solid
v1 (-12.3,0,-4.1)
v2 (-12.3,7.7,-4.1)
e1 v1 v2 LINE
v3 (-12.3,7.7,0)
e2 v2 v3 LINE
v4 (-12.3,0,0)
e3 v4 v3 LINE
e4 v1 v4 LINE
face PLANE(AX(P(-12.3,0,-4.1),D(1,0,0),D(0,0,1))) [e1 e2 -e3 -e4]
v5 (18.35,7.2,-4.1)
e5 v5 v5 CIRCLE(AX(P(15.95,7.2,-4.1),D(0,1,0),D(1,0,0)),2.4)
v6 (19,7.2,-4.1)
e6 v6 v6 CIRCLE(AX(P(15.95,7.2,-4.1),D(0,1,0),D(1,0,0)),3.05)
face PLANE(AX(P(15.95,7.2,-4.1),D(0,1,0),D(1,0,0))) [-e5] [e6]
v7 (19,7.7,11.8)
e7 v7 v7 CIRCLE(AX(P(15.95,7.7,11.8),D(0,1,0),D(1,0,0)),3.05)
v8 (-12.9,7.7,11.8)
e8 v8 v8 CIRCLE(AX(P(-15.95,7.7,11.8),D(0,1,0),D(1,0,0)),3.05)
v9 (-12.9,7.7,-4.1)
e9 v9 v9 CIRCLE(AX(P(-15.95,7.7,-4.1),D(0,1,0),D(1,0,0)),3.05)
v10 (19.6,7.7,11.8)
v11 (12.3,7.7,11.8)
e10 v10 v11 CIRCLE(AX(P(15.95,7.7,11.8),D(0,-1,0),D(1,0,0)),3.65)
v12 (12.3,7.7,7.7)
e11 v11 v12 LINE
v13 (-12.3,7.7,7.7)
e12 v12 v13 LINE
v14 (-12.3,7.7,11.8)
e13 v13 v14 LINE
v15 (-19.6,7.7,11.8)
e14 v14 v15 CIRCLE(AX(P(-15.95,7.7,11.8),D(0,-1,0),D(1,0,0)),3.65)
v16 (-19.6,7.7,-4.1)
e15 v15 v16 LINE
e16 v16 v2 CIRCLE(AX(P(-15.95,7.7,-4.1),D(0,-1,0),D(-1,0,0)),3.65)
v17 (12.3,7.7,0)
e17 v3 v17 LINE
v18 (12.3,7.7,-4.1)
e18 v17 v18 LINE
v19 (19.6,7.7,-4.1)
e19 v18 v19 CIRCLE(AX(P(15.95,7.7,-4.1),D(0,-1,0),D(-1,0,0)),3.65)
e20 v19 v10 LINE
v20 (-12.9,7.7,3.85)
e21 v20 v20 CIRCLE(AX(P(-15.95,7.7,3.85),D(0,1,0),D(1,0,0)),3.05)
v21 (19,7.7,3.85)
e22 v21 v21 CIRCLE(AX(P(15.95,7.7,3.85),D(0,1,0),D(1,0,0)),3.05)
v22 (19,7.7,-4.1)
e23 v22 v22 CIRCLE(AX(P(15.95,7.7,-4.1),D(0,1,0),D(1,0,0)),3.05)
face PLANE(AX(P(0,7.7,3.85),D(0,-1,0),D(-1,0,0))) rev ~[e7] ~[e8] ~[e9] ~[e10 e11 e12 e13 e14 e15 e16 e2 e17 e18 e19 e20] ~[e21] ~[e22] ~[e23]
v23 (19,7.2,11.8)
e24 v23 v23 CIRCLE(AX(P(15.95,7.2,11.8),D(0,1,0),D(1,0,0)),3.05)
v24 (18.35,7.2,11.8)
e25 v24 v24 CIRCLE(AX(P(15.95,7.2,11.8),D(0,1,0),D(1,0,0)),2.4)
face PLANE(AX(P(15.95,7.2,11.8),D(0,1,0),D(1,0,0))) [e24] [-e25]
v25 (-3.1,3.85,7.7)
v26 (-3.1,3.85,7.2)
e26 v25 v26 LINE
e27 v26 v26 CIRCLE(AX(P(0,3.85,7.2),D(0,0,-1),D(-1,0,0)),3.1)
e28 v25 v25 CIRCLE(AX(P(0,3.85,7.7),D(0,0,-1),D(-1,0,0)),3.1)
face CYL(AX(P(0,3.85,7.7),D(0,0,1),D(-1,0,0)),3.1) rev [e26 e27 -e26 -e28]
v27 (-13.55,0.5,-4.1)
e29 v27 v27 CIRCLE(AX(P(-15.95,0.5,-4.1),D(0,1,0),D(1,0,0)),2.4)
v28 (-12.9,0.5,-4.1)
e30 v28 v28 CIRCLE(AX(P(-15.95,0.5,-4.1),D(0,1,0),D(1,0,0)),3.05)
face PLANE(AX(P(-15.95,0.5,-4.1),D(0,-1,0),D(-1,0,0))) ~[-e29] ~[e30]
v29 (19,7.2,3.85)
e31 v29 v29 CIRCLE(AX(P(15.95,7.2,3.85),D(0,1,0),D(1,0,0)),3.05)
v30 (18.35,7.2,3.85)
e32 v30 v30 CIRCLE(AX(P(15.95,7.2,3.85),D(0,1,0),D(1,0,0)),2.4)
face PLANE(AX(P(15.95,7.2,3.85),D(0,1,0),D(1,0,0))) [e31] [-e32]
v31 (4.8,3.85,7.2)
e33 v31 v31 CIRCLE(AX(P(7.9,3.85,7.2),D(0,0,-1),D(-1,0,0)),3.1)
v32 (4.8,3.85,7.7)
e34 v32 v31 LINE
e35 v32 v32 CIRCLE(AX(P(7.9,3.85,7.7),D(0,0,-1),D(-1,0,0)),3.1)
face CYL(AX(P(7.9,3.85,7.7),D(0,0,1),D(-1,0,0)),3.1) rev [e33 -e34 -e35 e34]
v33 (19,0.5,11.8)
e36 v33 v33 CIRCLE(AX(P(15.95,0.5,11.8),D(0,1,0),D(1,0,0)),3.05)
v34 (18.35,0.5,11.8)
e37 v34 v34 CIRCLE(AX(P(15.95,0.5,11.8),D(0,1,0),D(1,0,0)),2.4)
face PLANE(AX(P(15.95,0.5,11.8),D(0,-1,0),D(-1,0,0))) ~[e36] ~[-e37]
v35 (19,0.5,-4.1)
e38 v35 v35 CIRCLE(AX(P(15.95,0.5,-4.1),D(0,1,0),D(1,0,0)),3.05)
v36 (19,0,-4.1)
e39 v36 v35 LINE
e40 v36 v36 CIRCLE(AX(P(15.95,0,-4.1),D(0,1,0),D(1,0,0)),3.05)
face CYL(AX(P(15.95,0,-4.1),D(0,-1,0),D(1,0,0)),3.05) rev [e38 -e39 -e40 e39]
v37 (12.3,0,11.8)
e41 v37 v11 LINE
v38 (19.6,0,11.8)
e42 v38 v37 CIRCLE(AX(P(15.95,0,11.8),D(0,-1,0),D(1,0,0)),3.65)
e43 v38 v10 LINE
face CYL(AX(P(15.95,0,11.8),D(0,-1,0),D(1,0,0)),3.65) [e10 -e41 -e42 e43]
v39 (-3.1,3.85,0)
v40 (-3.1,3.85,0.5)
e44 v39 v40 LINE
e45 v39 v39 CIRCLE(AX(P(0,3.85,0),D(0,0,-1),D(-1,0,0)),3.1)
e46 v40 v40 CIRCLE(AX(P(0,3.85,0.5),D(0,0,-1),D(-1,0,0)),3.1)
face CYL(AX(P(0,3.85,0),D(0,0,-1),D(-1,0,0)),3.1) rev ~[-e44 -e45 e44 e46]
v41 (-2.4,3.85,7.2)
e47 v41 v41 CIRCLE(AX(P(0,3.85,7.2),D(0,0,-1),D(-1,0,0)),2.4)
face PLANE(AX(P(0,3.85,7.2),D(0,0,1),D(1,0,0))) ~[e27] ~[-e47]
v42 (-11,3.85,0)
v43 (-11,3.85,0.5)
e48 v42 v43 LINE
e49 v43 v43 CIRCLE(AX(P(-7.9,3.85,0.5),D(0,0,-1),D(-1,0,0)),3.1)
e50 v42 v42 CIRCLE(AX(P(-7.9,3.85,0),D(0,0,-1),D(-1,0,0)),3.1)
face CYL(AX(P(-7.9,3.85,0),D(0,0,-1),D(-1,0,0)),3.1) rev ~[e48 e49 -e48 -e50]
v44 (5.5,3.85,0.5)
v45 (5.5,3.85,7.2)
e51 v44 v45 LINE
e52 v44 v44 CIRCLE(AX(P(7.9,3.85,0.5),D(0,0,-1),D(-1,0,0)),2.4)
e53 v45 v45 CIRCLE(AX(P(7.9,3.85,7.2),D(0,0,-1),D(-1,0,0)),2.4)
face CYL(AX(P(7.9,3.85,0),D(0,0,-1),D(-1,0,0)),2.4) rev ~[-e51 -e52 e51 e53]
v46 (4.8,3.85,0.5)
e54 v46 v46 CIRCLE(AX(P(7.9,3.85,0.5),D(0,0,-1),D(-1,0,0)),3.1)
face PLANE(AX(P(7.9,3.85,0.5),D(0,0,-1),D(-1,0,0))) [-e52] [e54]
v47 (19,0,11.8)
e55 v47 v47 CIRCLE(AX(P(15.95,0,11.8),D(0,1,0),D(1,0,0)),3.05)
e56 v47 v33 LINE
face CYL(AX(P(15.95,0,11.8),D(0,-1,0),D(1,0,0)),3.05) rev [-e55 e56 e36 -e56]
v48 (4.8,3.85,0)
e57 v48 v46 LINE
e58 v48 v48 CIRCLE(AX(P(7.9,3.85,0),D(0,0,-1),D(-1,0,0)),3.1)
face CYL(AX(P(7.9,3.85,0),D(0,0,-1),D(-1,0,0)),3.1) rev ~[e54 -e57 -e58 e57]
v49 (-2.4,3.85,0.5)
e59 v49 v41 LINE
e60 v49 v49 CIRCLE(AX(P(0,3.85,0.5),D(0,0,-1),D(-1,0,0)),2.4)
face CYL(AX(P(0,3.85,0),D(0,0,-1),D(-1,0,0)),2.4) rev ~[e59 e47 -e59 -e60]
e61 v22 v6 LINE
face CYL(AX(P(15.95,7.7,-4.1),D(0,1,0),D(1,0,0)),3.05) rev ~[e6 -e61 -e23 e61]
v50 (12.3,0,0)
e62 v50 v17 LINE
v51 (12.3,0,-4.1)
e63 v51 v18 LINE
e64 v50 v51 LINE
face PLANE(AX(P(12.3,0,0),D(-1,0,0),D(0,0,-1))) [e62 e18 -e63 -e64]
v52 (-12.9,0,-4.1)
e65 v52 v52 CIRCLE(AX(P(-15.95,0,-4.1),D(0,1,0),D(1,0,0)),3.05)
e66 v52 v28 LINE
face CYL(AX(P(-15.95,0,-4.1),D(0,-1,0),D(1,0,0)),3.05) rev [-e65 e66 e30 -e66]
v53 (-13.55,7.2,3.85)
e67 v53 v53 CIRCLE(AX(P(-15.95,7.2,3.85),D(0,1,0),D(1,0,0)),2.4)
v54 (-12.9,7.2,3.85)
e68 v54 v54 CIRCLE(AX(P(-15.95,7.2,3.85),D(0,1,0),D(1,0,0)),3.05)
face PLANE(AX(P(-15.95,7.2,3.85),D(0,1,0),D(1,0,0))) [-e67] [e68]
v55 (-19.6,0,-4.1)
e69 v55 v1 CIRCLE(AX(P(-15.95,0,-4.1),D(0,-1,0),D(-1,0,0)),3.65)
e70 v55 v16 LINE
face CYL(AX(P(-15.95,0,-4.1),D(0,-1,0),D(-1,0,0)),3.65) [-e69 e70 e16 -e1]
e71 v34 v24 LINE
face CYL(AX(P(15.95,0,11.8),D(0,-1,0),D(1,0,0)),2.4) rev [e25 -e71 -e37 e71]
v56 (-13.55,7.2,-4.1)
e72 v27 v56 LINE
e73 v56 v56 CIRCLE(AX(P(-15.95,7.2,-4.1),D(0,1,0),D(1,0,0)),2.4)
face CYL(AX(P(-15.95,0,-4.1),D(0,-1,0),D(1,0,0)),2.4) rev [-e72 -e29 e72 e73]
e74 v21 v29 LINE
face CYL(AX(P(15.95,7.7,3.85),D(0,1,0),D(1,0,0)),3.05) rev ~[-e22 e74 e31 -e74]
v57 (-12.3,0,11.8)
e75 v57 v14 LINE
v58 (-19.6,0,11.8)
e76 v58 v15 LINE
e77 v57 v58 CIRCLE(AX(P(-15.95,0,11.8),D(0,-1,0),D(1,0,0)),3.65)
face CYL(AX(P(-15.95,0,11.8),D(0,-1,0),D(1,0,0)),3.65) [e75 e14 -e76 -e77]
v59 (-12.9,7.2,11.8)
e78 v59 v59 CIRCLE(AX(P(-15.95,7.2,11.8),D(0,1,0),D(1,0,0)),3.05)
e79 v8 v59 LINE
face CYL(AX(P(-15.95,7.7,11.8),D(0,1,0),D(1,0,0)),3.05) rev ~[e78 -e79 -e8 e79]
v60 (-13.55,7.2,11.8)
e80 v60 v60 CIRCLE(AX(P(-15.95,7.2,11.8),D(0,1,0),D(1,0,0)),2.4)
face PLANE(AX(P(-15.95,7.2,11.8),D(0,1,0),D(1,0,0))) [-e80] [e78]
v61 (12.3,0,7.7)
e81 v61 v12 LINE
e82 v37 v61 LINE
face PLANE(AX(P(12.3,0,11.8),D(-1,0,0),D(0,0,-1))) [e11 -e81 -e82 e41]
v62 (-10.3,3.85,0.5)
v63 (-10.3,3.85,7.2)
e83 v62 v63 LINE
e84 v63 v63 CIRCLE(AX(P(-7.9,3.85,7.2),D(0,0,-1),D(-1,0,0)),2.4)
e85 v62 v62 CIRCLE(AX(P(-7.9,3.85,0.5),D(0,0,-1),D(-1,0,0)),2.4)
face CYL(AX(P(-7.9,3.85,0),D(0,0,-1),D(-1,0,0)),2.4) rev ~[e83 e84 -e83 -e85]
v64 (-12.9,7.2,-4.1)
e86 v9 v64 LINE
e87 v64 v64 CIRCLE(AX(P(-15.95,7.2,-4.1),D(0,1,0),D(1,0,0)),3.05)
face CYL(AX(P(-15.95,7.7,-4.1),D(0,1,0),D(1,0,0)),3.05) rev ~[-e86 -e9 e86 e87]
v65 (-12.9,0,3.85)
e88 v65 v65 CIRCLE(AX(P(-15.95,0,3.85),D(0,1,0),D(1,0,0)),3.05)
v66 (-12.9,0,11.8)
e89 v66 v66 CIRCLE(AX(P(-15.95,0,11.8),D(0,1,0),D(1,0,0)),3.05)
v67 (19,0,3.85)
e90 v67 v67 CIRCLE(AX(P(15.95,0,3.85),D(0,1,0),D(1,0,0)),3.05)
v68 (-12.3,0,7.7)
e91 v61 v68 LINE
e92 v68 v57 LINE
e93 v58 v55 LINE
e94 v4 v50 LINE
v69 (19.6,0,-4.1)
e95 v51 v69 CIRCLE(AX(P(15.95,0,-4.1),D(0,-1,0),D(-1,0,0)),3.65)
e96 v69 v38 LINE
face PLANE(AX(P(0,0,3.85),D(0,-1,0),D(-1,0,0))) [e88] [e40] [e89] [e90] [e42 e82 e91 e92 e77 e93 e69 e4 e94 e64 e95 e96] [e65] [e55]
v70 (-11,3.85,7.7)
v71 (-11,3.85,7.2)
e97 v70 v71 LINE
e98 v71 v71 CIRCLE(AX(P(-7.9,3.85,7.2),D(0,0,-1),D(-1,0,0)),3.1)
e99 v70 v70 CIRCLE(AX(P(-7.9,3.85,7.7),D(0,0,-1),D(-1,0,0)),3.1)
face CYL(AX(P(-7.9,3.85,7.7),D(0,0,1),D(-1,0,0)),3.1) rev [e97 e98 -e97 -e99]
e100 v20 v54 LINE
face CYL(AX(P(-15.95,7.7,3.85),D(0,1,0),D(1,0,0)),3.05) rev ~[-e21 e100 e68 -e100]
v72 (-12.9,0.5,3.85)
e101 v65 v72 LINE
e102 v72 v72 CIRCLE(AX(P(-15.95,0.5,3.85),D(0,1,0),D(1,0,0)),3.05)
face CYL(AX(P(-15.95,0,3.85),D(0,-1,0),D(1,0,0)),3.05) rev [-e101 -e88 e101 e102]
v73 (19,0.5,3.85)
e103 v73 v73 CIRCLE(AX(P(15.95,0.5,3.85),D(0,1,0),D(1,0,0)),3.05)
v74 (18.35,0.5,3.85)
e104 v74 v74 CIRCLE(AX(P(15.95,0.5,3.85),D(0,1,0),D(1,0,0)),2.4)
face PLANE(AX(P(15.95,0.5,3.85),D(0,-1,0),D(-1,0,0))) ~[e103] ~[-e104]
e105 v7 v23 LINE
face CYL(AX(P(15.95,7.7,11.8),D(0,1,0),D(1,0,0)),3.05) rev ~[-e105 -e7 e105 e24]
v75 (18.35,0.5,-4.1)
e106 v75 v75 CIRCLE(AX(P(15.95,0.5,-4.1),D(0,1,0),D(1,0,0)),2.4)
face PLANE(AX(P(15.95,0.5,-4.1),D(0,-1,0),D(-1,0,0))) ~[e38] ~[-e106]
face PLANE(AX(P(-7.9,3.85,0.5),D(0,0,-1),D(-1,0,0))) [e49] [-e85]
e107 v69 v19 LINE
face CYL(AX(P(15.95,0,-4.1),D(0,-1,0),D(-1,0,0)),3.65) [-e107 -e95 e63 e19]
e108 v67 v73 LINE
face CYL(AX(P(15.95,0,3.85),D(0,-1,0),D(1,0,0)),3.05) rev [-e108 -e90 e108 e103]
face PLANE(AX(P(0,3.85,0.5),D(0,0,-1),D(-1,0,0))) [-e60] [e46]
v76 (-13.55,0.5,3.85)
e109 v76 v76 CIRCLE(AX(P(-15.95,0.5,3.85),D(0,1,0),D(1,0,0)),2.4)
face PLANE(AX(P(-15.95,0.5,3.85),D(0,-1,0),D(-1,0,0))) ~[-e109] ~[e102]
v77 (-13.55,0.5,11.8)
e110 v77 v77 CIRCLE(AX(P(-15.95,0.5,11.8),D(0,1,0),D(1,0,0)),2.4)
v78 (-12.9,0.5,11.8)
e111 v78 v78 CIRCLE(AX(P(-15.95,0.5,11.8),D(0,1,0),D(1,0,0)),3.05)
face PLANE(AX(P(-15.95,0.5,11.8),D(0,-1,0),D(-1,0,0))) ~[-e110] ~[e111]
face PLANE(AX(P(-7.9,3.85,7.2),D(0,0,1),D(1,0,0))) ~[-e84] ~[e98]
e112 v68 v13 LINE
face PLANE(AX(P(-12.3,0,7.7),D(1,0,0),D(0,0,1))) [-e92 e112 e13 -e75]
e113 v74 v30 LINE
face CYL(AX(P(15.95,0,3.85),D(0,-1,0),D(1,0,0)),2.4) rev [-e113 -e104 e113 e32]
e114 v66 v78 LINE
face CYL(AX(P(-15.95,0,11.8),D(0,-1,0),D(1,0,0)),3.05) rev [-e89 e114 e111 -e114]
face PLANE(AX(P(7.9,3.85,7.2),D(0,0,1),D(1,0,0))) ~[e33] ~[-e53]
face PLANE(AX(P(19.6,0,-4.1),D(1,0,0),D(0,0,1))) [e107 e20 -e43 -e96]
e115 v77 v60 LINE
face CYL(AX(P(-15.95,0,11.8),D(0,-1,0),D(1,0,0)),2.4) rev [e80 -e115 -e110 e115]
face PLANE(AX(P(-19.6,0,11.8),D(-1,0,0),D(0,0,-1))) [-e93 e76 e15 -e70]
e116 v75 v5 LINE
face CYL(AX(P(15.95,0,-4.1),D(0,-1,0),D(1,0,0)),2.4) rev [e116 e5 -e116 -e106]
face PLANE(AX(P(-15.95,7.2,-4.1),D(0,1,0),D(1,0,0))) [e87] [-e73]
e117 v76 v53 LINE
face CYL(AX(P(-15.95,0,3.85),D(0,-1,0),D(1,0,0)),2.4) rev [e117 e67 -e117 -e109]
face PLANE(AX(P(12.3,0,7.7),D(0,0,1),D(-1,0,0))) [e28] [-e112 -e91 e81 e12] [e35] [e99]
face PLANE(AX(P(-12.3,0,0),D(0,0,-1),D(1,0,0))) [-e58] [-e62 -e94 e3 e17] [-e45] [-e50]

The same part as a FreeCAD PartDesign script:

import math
import FreeCAD as App
import Part
import Sketcher
Q = App.Units.Quantity

doc = App.newDocument("Part")
body = doc.addObject("PartDesign::Body", "Body")

sketch1 = body.newObject("Sketcher::SketchObject", "Sketch")
sketch1.AttachmentSupport = (doc.getObject("XZ_Plane"), [""])
sketch1.MapMode = "FlatFace"
sketch1.addGeometry([
    Part.LineSegment(App.Vector(19.6, 11.8, 0), App.Vector(19.6, -4.1, 0)),
    Part.ArcOfCircle(Part.Circle(App.Vector(15.9, -4.1, 0), App.Vector(0, 0, 1), 3.6), math.radians(180), math.radians(360)),
    Part.LineSegment(App.Vector(12.3, -4.1, 0), App.Vector(12.3, 0, 0)),
    Part.LineSegment(App.Vector(12.3, 0, 0), App.Vector(-12.3, 0, 0)),
    Part.LineSegment(App.Vector(-12.3, 0, 0), App.Vector(-12.3, -4.1, 0)),
    Part.ArcOfCircle(Part.Circle(App.Vector(-15.9, -4.1, 0), App.Vector(0, 0, 1), 3.6), math.radians(180), math.radians(360)),
    Part.LineSegment(App.Vector(-19.6, -4.1, 0), App.Vector(-19.6, 11.8, 0)),
    Part.ArcOfCircle(Part.Circle(App.Vector(-15.9, 11.8, 0), App.Vector(0, 0, 1), 3.6), math.radians(0), math.radians(180)),
    Part.LineSegment(App.Vector(-12.3, 11.8, 0), App.Vector(-12.3, 7.7, 0)),
    Part.LineSegment(App.Vector(-12.3, 7.7, 0), App.Vector(12.3, 7.7, 0)),
    Part.LineSegment(App.Vector(12.3, 7.7, 0), App.Vector(12.3, 11.8, 0)),
    Part.ArcOfCircle(Part.Circle(App.Vector(15.9, 11.8, 0), App.Vector(0, 0, 1), 3.6), math.radians(0), math.radians(180)),
    Part.Circle(App.Vector(15.9, 11.8, 0), App.Vector(0, 0, 1), 2.4),
    Part.Circle(App.Vector(-15.9, 11.8, 0), App.Vector(0, 0, 1), 2.4),
    Part.Circle(App.Vector(15.9, 3.9, 0), App.Vector(0, 0, 1), 2.4),
    Part.Circle(App.Vector(15.9, -4.1, 0), App.Vector(0, 0, 1), 2.4),
    Part.Circle(App.Vector(-15.9, 3.9, 0), App.Vector(0, 0, 1), 2.4),
    Part.Circle(App.Vector(-15.9, -4.1, 0), App.Vector(0, 0, 1), 2.4),
], False)
sketch1.addConstraint([
    Sketcher.Constraint("Tangent", 0, 2, 1, 2),
    Sketcher.Constraint("Tangent", 1, 1, 2, 1),
    Sketcher.Constraint("Coincident", 2, 2, 3, 1),
    Sketcher.Constraint("Coincident", 3, 2, 4, 1),
    Sketcher.Constraint("Tangent", 4, 2, 5, 2),
    Sketcher.Constraint("Tangent", 5, 1, 6, 1),
    Sketcher.Constraint("Tangent", 6, 2, 7, 2),
    Sketcher.Constraint("Tangent", 7, 1, 8, 1),
    Sketcher.Constraint("Coincident", 8, 2, 9, 1),
    Sketcher.Constraint("Coincident", 9, 2, 10, 1),
    Sketcher.Constraint("Tangent", 10, 2, 11, 2),
    Sketcher.Constraint("Tangent", 11, 1, 0, 1),
    Sketcher.Constraint("Vertical", 0),
    Sketcher.Constraint("Vertical", 2),
    Sketcher.Constraint("Horizontal", 3),
    Sketcher.Constraint("Vertical", 4),
    Sketcher.Constraint("Vertical", 6),
    Sketcher.Constraint("Vertical", 8),
    Sketcher.Constraint("Horizontal", 9),
    Sketcher.Constraint("Vertical", 10),
    Sketcher.Constraint("Coincident", 12, 3, 11, 3),
    Sketcher.Constraint("Coincident", 13, 3, 7, 3),
    Sketcher.Constraint("Coincident", 15, 3, 1, 3),
    Sketcher.Constraint("Coincident", 17, 3, 5, 3),
    Sketcher.Constraint("Equal", 1, 5),
    Sketcher.Constraint("Equal", 5, 7),
    Sketcher.Constraint("Equal", 7, 11),
    Sketcher.Constraint("Equal", 12, 13),
    Sketcher.Constraint("Equal", 13, 14),
    Sketcher.Constraint("Equal", 14, 15),
    Sketcher.Constraint("Equal", 15, 16),
    Sketcher.Constraint("Equal", 16, 17),
    Sketcher.Constraint("Symmetric", 2, 2, 3, 2, -1, 1),
    Sketcher.Constraint("Symmetric", 14, 3, 16, 3, -2),
    Sketcher.Constraint("Horizontal", 1, 3, 5, 3),
    Sketcher.Constraint("Horizontal", 7, 3, 11, 3),
    Sketcher.Constraint("Vertical", 12, 3, 14, 3),
    Sketcher.Constraint("Equal", 4, 8),
    Sketcher.Constraint("Diameter", 12, Q("4.8 mm")),
    Sketcher.Constraint("Radius", 1, Q("3.65 mm")),
    Sketcher.Constraint("DistanceX", 3, 2, 3, 1, Q("24.6 mm")),
    Sketcher.Constraint("DistanceY", 0, 2, 0, 1, Q("15.9 mm")),
    Sketcher.Constraint("DistanceY", 2, 1, 2, 2, Q("4.1 mm")),
    Sketcher.Constraint("DistanceY", -1, 1, 14, 3, Q("3.85 mm")),
])
pad1 = body.newObject("PartDesign::Pad", "Pad")
pad1.Profile = sketch1
pad1.Length = 7.7
pad1.Reversed = True

sketch2 = body.newObject("Sketcher::SketchObject", "Sketch001")
sketch2.AttachmentSupport = (doc.getObject("XZ_Plane"), [""])
sketch2.MapMode = "FlatFace"
sketch2.AttachmentOffset = App.Placement(App.Vector(0, 0, -7.7), App.Rotation())
sketch2.addGeometry([
    Part.Circle(App.Vector(-15.9, -4.1, 0), App.Vector(0, 0, 1), 3),
    Part.Circle(App.Vector(-15.9, -4.1, 0), App.Vector(0, 0, 1), 2.4),
    Part.Circle(App.Vector(-15.9, 3.9, 0), App.Vector(0, 0, 1), 3),
    Part.Circle(App.Vector(-15.9, 3.9, 0), App.Vector(0, 0, 1), 2.4),
    Part.Circle(App.Vector(-15.9, 11.8, 0), App.Vector(0, 0, 1), 3),
    Part.Circle(App.Vector(-15.9, 11.8, 0), App.Vector(0, 0, 1), 2.4),
    Part.Circle(App.Vector(15.9, 3.9, 0), App.Vector(0, 0, 1), 3),
    Part.Circle(App.Vector(15.9, 3.9, 0), App.Vector(0, 0, 1), 2.4),
    Part.Circle(App.Vector(15.9, -4.1, 0), App.Vector(0, 0, 1), 3),
    Part.Circle(App.Vector(15.9, -4.1, 0), App.Vector(0, 0, 1), 2.4),
    Part.Circle(App.Vector(15.9, 11.8, 0), App.Vector(0, 0, 1), 3),
    Part.Circle(App.Vector(15.9, 11.8, 0), App.Vector(0, 0, 1), 2.4),
], False)
sketch2.addConstraint([
    Sketcher.Constraint("Coincident", 1, 3, 0, 3),
    Sketcher.Constraint("Coincident", 3, 3, 2, 3),
    Sketcher.Constraint("Coincident", 5, 3, 4, 3),
    Sketcher.Constraint("Coincident", 7, 3, 6, 3),
    Sketcher.Constraint("Coincident", 9, 3, 8, 3),
    Sketcher.Constraint("Coincident", 11, 3, 10, 3),
    Sketcher.Constraint("Equal", 0, 2),
    Sketcher.Constraint("Equal", 1, 3),
    Sketcher.Constraint("Equal", 2, 4),
    Sketcher.Constraint("Equal", 3, 5),
    Sketcher.Constraint("Equal", 4, 6),
    Sketcher.Constraint("Equal", 5, 7),
    Sketcher.Constraint("Equal", 6, 8),
    Sketcher.Constraint("Equal", 7, 9),
    Sketcher.Constraint("Equal", 8, 10),
    Sketcher.Constraint("Equal", 9, 11),
    Sketcher.Constraint("Symmetric", 2, 3, 6, 3, -2),
    Sketcher.Constraint("Symmetric", 0, 3, 8, 3, -2),
    Sketcher.Constraint("Symmetric", 4, 3, 10, 3, -2),
    Sketcher.Constraint("Vertical", 1, 3, 2, 3),
    Sketcher.Constraint("Vertical", 3, 3, 4, 3),
    Sketcher.Constraint("Diameter", 0, Q("6.1 mm")),
    Sketcher.Constraint("Diameter", 1, Q("4.8 mm")),
    Sketcher.Constraint("DistanceY", 0, 3, -1, 1, Q("4.1 mm")),
    Sketcher.Constraint("DistanceY", -1, 1, 4, 3, Q("11.8 mm")),
    Sketcher.Constraint("DistanceX", 2, 3, 6, 3, Q("31.9 mm")),
    Sketcher.Constraint("DistanceY", -1, 1, 2, 3, Q("3.85 mm")),
])
pocket1 = body.newObject("PartDesign::Pocket", "Pocket")
pocket1.Profile = sketch2
pocket1.Length = 0.5
pocket1.Reversed = True

sketch3 = body.newObject("Sketcher::SketchObject", "Sketch002")
sketch3.AttachmentSupport = (doc.getObject("XY_Plane"), [""])
sketch3.MapMode = "FlatFace"
sketch3.addGeometry([
    Part.Circle(App.Vector(-7.9, 3.9, 0), App.Vector(0, 0, 1), 2.4),
    Part.Circle(App.Vector(0, 3.9, 0), App.Vector(0, 0, 1), 2.4),
    Part.Circle(App.Vector(7.9, 3.9, 0), App.Vector(0, 0, 1), 2.4),
], False)
sketch3.addConstraint([
    Sketcher.Constraint("Equal", 0, 1),
    Sketcher.Constraint("Equal", 1, 2),
    Sketcher.Constraint("Symmetric", 0, 3, 2, 3, -2),
    Sketcher.Constraint("PointOnObject", 1, 3, -2),
    Sketcher.Constraint("Horizontal", 0, 3, 1, 3),
    Sketcher.Constraint("Diameter", 0, Q("4.8 mm")),
    Sketcher.Constraint("DistanceX", 0, 3, -1, 1, Q("7.9 mm")),
    Sketcher.Constraint("DistanceY", -1, 1, 0, 3, Q("3.85 mm")),
])
pocket2 = body.newObject("PartDesign::Pocket", "Pocket001")
pocket2.Profile = sketch3
pocket2.Type = "ThroughAll"
pocket2.Reversed = True

sketch4 = body.newObject("Sketcher::SketchObject", "Sketch003")
sketch4.AttachmentSupport = (doc.getObject("XY_Plane"), [""])
sketch4.MapMode = "FlatFace"
sketch4.addGeometry([
    Part.Circle(App.Vector(7.9, 3.9, 0), App.Vector(0, 0, 1), 3.1),
    Part.Circle(App.Vector(7.9, 3.9, 0), App.Vector(0, 0, 1), 2.4),
    Part.Circle(App.Vector(0, 3.9, 0), App.Vector(0, 0, 1), 3.1),
    Part.Circle(App.Vector(0, 3.9, 0), App.Vector(0, 0, 1), 2.4),
    Part.Circle(App.Vector(-7.9, 3.9, 0), App.Vector(0, 0, 1), 3.1),
    Part.Circle(App.Vector(-7.9, 3.9, 0), App.Vector(0, 0, 1), 2.4),
], False)
sketch4.addConstraint([
    Sketcher.Constraint("Coincident", 1, 3, 0, 3),
    Sketcher.Constraint("Coincident", 3, 3, 2, 3),
    Sketcher.Constraint("Coincident", 5, 3, 4, 3),
    Sketcher.Constraint("Equal", 0, 2),
    Sketcher.Constraint("Equal", 1, 3),
    Sketcher.Constraint("Equal", 2, 4),
    Sketcher.Constraint("Equal", 3, 5),
    Sketcher.Constraint("Symmetric", 0, 3, 4, 3, -2),
    Sketcher.Constraint("PointOnObject", 2, 3, -2),
    Sketcher.Constraint("Horizontal", 1, 3, 2, 3),
    Sketcher.Constraint("Diameter", 0, Q("6.2 mm")),
    Sketcher.Constraint("Diameter", 1, Q("4.8 mm")),
    Sketcher.Constraint("DistanceX", -1, 1, 0, 3, Q("7.9 mm")),
    Sketcher.Constraint("DistanceY", -1, 1, 0, 3, Q("3.85 mm")),
])
pocket3 = body.newObject("PartDesign::Pocket", "Pocket002")
pocket3.Profile = sketch4
pocket3.Length = 0.5
pocket3.Reversed = True
doc.recompute()

datumplane = body.newObject("PartDesign::Plane", "DatumPlane")
datumplane.AttachmentSupport = (doc.getObject("XY_Plane"), [""])
datumplane.MapMode = "FlatFace"
datumplane.AttachmentOffset = App.Placement(App.Vector(0, 0, 3.85), App.Rotation())
mirrored = body.newObject("PartDesign::Mirrored", "Mirrored")
mirrored.Originals = [pocket3]
mirrored.MirrorPlane = (datumplane, [""])
body.Tip = mirrored
doc.recompute()

datumplane2 = body.newObject("PartDesign::Plane", "DatumPlane001")
datumplane2.AttachmentSupport = (doc.getObject("XZ_Plane"), [""])
datumplane2.MapMode = "FlatFace"
datumplane2.AttachmentOffset = App.Placement(App.Vector(0, 0, -3.85), App.Rotation())
mirrored2 = body.newObject("PartDesign::Mirrored", "Mirrored001")
mirrored2.Originals = [pocket1]
mirrored2.MirrorPlane = (datumplane2, [""])
body.Tip = mirrored2

doc.recompute()
